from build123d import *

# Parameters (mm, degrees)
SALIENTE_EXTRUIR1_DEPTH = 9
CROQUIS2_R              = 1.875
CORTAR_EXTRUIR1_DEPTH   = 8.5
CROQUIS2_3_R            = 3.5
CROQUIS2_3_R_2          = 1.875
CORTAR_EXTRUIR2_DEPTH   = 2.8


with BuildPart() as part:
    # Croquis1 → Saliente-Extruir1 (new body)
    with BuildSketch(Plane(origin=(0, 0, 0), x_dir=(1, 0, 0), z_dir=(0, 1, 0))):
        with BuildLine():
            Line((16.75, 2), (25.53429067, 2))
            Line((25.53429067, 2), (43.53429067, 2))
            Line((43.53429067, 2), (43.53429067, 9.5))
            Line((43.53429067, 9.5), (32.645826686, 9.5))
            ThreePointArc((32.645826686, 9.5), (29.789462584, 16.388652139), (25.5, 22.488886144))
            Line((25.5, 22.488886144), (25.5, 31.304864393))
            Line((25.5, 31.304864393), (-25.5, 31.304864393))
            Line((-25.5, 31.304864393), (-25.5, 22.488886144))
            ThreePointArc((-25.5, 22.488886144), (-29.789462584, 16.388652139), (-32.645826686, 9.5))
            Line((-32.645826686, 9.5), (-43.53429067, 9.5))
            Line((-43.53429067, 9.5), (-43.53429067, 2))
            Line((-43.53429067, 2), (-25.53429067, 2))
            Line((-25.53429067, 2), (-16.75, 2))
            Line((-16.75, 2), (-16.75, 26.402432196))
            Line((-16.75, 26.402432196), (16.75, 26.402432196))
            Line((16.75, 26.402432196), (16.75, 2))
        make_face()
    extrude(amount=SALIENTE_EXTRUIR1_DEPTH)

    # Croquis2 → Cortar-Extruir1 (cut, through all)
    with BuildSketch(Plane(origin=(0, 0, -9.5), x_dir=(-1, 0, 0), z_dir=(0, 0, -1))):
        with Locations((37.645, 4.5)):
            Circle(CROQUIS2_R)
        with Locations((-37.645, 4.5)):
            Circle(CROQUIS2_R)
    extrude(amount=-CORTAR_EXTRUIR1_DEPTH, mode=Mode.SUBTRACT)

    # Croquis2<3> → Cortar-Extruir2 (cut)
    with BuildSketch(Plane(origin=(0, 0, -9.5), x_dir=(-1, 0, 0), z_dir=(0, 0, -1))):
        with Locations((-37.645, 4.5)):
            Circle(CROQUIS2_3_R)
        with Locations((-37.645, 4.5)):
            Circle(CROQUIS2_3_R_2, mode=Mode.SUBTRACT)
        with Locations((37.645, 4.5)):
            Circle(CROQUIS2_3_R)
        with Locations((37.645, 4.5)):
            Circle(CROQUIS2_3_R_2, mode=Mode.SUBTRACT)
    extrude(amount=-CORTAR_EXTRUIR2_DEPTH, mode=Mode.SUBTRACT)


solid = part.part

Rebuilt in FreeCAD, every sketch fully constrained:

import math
import FreeCAD as App
import Part
import Sketcher
from FreeCAD import Vector

doc = App.newDocument("Part")
body = doc.addObject("PartDesign::Body", "Body")

# Sketch on XZ plane
sketch1 = doc.addObject("Sketcher::SketchObject", "Sketch")
body.addObject(sketch1)
sketch1.AttachmentSupport = (doc.XZ_Plane, [""])
sketch1.MapMode = "FlatFace"
sketch1.addGeometry(Part.LineSegment(Vector(17, -2, 0), Vector(44, -2, 0)), False)
sketch1.addGeometry(Part.LineSegment(Vector(44, -2, 0), Vector(44, -10, 0)), False)
sketch1.addGeometry(Part.LineSegment(Vector(44, -10, 0), Vector(33, -10, 0)), False)
sketch1.addGeometry(Part.ArcOfCircle(Part.Circle(Vector(0, 0, 0), Vector(0, 0, 1), 34), math.radians(-41), math.radians(-16)), False)
sketch1.addGeometry(Part.LineSegment(Vector(26, -22, 0), Vector(26, -31, 0)), False)
sketch1.addGeometry(Part.LineSegment(Vector(26, -31, 0), Vector(-26, -31, 0)), False)
sketch1.addGeometry(Part.LineSegment(Vector(-26, -31, 0), Vector(-26, -22, 0)), False)
sketch1.addGeometry(Part.ArcOfCircle(Part.Circle(Vector(0, 0, 0), Vector(0, 0, 1), 34), math.radians(-164), math.radians(-139)), False)
sketch1.addGeometry(Part.LineSegment(Vector(-33, -10, 0), Vector(-44, -10, 0)), False)
sketch1.addGeometry(Part.LineSegment(Vector(-44, -10, 0), Vector(-44, -2, 0)), False)
sketch1.addGeometry(Part.LineSegment(Vector(-44, -2, 0), Vector(-17, -2, 0)), False)
sketch1.addGeometry(Part.LineSegment(Vector(-17, -2, 0), Vector(-17, -26, 0)), False)
sketch1.addGeometry(Part.LineSegment(Vector(-17, -26, 0), Vector(17, -26, 0)), False)
sketch1.addGeometry(Part.LineSegment(Vector(17, -26, 0), Vector(17, -2, 0)), False)
sketch1.addConstraint(Sketcher.Constraint("Coincident", 0, 2, 1, 1))
sketch1.addConstraint(Sketcher.Constraint("Coincident", 1, 2, 2, 1))
sketch1.addConstraint(Sketcher.Constraint("Coincident", 2, 2, 3, 2))
sketch1.addConstraint(Sketcher.Constraint("Coincident", 3, 1, 4, 1))
sketch1.addConstraint(Sketcher.Constraint("Coincident", 4, 2, 5, 1))
sketch1.addConstraint(Sketcher.Constraint("Coincident", 5, 2, 6, 1))
sketch1.addConstraint(Sketcher.Constraint("Coincident", 6, 2, 7, 2))
sketch1.addConstraint(Sketcher.Constraint("Coincident", 7, 1, 8, 1))
sketch1.addConstraint(Sketcher.Constraint("Coincident", 8, 2, 9, 1))
sketch1.addConstraint(Sketcher.Constraint("Coincident", 9, 2, 10, 1))
sketch1.addConstraint(Sketcher.Constraint("Coincident", 10, 2, 11, 1))
sketch1.addConstraint(Sketcher.Constraint("Coincident", 11, 2, 12, 1))
sketch1.addConstraint(Sketcher.Constraint("Coincident", 12, 2, 13, 1))
sketch1.addConstraint(Sketcher.Constraint("Coincident", 13, 2, 0, 1))
sketch1.addConstraint(Sketcher.Constraint("Horizontal", 0))
sketch1.addConstraint(Sketcher.Constraint("Vertical", 1))
sketch1.addConstraint(Sketcher.Constraint("Horizontal", 2))
sketch1.addConstraint(Sketcher.Constraint("Vertical", 4))
sketch1.addConstraint(Sketcher.Constraint("Horizontal", 5))
sketch1.addConstraint(Sketcher.Constraint("Vertical", 6))
sketch1.addConstraint(Sketcher.Constraint("Horizontal", 8))
sketch1.addConstraint(Sketcher.Constraint("Vertical", 9))
sketch1.addConstraint(Sketcher.Constraint("Horizontal", 10))
sketch1.addConstraint(Sketcher.Constraint("Vertical", 11))
sketch1.addConstraint(Sketcher.Constraint("Horizontal", 12))
sketch1.addConstraint(Sketcher.Constraint("Vertical", 13))
sketch1.addConstraint(Sketcher.Constraint("Coincident", 3, 3, -1, 1))
sketch1.addConstraint(Sketcher.Constraint("Coincident", 7, 3, -1, 1))
sketch1.addConstraint(Sketcher.Constraint("Equal", 3, 7))
sketch1.addConstraint(Sketcher.Constraint("Symmetric", 1, 2, 8, 2, -2))
sketch1.addConstraint(Sketcher.Constraint("Symmetric", 10, 2, 13, 2, -2))
sketch1.addConstraint(Sketcher.Constraint("Horizontal", 3, 1, 6, 2))
sketch1.addConstraint(Sketcher.Constraint("Radius", 3, 34.0))
sketch1.addConstraint(Sketcher.Constraint("DistanceX", 5, 2, 5, 1, 51.0))
sketch1.addConstraint(Sketcher.Constraint("DistanceX", 12, 1, 12, 2, 33.5))
sketch1.addConstraint(Sketcher.Constraint("DistanceY", 1, 2, 1, 1, 7.5))
sketch1.addConstraint(Sketcher.Constraint("DistanceY", 0, 2, -1, 1, 2.0))
sketch1.addConstraint(Sketcher.Constraint("DistanceX", 0, 1, 0, 2, 26.784291))
sketch1.addConstraint(Sketcher.Constraint("DistanceY", 4, 2, 4, 1, 8.815978))
sketch1.addConstraint(Sketcher.Constraint("DistanceY", 11, 2, 11, 1, 24.402432))
pad1 = doc.addObject("PartDesign::Pad", "Pad")
body.addObject(pad1)
pad1.Profile = sketch1
pad1.Length = 9
pad1.Reversed = True

# Sketch on XY plane
sketch2 = doc.addObject("Sketcher::SketchObject", "Sketch001")
body.addObject(sketch2)
sketch2.AttachmentSupport = (doc.XY_Plane, [""])
sketch2.MapMode = "FlatFace"
sketch2.AttachmentOffset = App.Placement(Vector(0, 0, -9.5), App.Rotation())
sketch2.addGeometry(Part.Circle(Vector(-37.6, 4.5, 0), Vector(0, 0, 1), 1.9), False)
sketch2.addGeometry(Part.Circle(Vector(37.6, 4.5, 0), Vector(0, 0, 1), 1.9), False)
sketch2.addConstraint(Sketcher.Constraint("Equal", 0, 1))
sketch2.addConstraint(Sketcher.Constraint("Symmetric", 0, 3, 1, 3, -2))
sketch2.addConstraint(Sketcher.Constraint("Diameter", 0, 3.75))
sketch2.addConstraint(Sketcher.Constraint("DistanceY", -1, 1, 0, 3, 4.5))
sketch2.addConstraint(Sketcher.Constraint("DistanceX", 0, 3, 1, 3, 75.29))
pocket1 = doc.addObject("PartDesign::Pocket", "Pocket")
body.addObject(pocket1)
pocket1.Profile = sketch2
pocket1.Type = "ThroughAll"
pocket1.Reversed = True

# Sketch on XY plane
sketch3 = doc.addObject("Sketcher::SketchObject", "Sketch002")
body.addObject(sketch3)
sketch3.AttachmentSupport = (doc.XY_Plane, [""])
sketch3.MapMode = "FlatFace"
sketch3.AttachmentOffset = App.Placement(Vector(0, 0, -9.5), App.Rotation())
sketch3.addGeometry(Part.Circle(Vector(37.6, 4.5, 0), Vector(0, 0, 1), 3.5), False)
sketch3.addGeometry(Part.Circle(Vector(37.6, 4.5, 0), Vector(0, 0, 1), 1.9), False)
sketch3.addGeometry(Part.Circle(Vector(-37.6, 4.5, 0), Vector(0, 0, 1), 3.5), False)
sketch3.addGeometry(Part.Circle(Vector(-37.6, 4.5, 0), Vector(0, 0, 1), 1.9), False)
sketch3.addConstraint(Sketcher.Constraint("Coincident", 1, 3, 0, 3))
sketch3.addConstraint(Sketcher.Constraint("Coincident", 3, 3, 2, 3))
sketch3.addConstraint(Sketcher.Constraint("Equal", 0, 2))
sketch3.addConstraint(Sketcher.Constraint("Equal", 1, 3))
sketch3.addConstraint(Sketcher.Constraint("Symmetric", 0, 3, 2, 3, -2))
sketch3.addConstraint(Sketcher.Constraint("Diameter", 0, 7.0))
sketch3.addConstraint(Sketcher.Constraint("Diameter", 1, 3.75))
sketch3.addConstraint(Sketcher.Constraint("DistanceY", -1, 1, 0, 3, 4.5))
sketch3.addConstraint(Sketcher.Constraint("DistanceX", 2, 3, 0, 3, 75.29))
pocket2 = doc.addObject("PartDesign::Pocket", "Pocket001")
body.addObject(pocket2)
pocket2.Profile = sketch3
pocket2.Length = 2.8
pocket2.Reversed = True

doc.recompute()
